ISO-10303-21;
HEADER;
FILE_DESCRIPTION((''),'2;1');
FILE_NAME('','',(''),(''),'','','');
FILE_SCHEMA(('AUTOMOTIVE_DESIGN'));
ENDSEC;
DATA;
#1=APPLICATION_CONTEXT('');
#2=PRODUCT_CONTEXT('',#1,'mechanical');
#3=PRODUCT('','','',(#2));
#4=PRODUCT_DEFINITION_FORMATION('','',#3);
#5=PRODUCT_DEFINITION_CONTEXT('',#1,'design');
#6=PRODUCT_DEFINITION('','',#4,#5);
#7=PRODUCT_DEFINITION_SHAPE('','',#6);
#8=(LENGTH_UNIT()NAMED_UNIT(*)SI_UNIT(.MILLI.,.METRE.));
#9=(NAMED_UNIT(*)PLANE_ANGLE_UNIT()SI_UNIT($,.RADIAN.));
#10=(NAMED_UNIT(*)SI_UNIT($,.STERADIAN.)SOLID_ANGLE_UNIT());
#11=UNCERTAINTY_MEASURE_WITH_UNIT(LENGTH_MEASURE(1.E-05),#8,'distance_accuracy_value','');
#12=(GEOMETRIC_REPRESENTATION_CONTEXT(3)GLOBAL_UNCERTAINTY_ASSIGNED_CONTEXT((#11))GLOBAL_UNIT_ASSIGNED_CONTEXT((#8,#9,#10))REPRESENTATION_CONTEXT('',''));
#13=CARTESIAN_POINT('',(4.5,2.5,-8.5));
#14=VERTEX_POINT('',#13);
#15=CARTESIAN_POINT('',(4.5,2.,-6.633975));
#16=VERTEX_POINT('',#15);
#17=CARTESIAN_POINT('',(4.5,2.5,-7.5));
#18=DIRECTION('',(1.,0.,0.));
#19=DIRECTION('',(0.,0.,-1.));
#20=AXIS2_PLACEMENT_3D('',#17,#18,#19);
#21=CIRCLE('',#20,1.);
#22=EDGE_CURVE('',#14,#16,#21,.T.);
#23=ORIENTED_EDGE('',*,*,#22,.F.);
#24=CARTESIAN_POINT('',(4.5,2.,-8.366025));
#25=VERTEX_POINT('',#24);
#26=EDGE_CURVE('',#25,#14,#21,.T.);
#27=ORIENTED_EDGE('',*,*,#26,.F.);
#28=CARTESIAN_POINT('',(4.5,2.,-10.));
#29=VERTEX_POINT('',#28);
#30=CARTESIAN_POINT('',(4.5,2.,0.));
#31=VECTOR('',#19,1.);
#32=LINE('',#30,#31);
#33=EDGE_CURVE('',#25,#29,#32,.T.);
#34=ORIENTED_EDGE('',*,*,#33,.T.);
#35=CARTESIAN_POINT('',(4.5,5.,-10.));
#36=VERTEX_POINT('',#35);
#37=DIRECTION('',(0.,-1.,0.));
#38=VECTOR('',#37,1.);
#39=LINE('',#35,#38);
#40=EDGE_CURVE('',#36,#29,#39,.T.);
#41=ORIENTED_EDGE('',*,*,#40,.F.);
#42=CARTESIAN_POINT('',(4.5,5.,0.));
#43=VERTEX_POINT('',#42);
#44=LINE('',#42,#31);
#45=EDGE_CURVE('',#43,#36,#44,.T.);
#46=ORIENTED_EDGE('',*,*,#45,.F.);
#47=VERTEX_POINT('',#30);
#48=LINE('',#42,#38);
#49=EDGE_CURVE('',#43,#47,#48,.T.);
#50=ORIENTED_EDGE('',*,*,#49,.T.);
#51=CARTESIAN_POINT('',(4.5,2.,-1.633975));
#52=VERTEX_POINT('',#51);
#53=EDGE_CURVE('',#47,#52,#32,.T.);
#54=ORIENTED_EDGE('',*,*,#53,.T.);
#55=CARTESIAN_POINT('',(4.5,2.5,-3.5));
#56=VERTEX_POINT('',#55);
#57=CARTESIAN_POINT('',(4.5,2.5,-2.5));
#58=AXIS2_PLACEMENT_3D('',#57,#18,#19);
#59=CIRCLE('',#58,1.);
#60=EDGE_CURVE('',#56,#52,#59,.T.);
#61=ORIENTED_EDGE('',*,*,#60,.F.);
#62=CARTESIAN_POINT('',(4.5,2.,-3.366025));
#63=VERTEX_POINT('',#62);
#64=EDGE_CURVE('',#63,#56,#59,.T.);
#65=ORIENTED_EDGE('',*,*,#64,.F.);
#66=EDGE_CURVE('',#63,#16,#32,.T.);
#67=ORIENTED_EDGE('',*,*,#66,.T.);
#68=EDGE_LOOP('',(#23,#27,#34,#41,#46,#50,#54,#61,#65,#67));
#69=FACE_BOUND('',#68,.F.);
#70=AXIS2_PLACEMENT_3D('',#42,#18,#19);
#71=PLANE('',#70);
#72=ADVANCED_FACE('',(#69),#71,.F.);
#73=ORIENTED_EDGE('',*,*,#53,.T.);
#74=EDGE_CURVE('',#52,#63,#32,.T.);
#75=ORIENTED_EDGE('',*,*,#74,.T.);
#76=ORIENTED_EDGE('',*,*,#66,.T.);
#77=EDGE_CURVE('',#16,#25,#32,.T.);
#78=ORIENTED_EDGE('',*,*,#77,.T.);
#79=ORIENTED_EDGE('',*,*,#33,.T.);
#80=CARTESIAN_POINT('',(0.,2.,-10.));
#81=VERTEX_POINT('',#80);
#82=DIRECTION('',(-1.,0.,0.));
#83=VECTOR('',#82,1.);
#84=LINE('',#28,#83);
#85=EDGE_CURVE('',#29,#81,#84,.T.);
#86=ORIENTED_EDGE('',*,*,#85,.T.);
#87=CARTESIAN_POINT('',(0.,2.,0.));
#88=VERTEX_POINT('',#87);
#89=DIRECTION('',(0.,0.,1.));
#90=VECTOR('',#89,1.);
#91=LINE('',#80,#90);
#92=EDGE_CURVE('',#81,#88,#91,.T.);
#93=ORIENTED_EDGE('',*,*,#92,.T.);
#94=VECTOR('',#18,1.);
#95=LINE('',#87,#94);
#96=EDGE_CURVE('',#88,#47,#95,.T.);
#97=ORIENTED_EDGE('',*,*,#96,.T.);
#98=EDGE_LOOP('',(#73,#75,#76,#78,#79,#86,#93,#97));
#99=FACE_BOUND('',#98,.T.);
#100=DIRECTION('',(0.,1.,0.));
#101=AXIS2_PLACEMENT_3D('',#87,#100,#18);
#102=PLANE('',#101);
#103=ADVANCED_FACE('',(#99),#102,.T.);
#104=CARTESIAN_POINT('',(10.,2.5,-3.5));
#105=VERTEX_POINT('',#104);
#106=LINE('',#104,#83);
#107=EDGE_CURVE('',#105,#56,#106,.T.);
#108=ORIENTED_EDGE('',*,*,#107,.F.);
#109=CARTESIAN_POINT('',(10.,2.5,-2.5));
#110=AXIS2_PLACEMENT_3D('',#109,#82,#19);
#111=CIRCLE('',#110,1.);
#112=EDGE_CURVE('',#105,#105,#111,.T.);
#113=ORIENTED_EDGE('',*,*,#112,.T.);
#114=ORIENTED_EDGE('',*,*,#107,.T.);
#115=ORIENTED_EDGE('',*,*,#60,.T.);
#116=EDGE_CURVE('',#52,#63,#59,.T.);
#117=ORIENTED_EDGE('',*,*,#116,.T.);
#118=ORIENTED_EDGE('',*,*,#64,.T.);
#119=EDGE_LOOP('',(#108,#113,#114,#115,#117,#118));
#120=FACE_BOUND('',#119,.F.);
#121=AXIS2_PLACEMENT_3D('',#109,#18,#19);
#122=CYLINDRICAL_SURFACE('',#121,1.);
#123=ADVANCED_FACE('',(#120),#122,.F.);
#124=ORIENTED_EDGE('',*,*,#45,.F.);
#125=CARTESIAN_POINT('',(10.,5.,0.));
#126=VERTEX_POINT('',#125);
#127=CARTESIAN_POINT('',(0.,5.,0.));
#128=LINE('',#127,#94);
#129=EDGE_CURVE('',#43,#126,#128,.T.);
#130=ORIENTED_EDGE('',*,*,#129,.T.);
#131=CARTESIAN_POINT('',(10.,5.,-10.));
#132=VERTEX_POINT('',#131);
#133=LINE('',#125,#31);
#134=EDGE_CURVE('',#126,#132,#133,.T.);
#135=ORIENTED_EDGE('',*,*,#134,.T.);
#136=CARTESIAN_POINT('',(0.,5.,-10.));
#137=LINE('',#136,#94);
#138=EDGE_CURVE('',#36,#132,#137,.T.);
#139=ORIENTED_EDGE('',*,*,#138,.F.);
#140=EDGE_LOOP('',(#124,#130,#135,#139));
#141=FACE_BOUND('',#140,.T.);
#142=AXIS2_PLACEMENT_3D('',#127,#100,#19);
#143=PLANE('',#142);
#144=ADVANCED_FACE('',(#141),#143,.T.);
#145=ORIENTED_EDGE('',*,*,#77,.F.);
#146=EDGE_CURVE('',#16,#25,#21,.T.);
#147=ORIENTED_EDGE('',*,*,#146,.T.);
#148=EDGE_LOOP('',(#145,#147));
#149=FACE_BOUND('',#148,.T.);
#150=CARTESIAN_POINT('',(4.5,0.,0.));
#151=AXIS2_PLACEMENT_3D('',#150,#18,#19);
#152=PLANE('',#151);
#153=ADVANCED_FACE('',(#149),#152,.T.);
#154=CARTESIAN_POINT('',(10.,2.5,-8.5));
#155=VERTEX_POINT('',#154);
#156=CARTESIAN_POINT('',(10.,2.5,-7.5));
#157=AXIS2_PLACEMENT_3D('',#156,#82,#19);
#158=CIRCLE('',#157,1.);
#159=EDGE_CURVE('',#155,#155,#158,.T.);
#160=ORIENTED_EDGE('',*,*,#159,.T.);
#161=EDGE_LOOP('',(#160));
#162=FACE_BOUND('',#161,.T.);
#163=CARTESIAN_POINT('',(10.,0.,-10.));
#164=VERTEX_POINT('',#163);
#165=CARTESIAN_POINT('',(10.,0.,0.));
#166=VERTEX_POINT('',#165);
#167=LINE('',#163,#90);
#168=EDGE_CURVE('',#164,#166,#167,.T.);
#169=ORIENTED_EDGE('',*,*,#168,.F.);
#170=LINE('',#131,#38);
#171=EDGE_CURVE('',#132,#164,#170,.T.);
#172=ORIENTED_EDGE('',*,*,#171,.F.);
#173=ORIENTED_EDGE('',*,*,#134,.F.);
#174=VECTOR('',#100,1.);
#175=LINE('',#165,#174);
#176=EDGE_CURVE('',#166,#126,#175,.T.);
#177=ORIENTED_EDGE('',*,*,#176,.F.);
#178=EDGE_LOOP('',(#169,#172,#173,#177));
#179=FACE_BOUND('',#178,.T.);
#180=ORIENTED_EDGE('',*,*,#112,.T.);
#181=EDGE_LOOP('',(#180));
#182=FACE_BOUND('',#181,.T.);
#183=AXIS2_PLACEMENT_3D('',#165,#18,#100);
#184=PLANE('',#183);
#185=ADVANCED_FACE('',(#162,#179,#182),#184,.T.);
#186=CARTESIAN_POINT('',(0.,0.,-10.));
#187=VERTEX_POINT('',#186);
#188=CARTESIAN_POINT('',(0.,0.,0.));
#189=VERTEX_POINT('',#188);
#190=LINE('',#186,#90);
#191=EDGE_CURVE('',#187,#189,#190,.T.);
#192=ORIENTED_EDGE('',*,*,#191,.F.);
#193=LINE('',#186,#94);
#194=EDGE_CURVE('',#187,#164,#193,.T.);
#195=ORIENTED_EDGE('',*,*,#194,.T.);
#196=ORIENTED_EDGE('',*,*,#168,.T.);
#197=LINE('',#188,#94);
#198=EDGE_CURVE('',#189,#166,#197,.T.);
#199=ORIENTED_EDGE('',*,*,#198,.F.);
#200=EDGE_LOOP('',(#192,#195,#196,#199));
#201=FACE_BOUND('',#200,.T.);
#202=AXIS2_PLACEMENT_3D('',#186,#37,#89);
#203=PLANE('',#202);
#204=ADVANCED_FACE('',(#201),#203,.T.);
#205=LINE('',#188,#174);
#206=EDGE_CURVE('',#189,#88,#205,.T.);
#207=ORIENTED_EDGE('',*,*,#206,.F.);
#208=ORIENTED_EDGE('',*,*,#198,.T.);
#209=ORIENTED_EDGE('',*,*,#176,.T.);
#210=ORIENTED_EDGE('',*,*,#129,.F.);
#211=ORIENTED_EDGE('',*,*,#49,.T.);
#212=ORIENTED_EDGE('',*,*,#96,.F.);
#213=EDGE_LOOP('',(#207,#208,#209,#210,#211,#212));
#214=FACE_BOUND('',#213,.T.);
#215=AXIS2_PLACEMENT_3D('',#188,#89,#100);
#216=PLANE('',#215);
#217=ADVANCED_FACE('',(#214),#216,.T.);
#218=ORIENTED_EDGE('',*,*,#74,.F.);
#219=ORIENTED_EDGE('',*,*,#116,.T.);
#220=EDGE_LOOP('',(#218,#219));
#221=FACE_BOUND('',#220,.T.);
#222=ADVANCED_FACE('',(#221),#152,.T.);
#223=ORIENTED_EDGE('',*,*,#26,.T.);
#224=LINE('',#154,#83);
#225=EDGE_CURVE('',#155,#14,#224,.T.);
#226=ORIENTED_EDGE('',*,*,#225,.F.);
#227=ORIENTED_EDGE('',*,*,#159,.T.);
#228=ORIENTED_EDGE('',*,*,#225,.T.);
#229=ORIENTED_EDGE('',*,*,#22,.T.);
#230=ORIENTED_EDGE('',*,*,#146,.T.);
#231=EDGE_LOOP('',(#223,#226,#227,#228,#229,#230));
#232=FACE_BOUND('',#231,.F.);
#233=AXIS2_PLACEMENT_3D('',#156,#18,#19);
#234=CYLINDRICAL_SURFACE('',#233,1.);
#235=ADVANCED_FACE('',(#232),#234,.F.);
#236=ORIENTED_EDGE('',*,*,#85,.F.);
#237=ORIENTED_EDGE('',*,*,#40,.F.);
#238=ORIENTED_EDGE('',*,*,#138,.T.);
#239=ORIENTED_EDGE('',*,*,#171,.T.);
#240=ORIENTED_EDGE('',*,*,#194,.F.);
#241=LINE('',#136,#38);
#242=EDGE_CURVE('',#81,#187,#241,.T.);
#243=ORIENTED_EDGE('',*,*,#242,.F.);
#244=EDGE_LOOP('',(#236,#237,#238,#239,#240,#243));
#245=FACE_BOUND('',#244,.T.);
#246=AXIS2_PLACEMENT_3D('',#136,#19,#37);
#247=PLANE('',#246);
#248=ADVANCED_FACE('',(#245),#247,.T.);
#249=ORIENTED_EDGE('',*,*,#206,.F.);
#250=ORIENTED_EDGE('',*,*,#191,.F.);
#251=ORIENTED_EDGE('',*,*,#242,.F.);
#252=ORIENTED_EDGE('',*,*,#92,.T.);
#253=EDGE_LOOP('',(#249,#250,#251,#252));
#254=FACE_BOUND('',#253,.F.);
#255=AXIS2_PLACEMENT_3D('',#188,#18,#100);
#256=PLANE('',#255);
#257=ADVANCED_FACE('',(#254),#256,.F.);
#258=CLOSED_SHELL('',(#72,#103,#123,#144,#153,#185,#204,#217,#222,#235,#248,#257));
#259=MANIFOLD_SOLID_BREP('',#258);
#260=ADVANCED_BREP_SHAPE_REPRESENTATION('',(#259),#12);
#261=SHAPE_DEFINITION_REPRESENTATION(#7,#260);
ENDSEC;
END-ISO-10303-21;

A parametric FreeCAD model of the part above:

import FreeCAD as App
import Part
import Sketcher


def add_polygon(sketch, points):
    """Adds a closed chain of lines whose ends are joined by coincident constraints."""
    first, n = sketch.GeometryCount, len(points)
    for a, b in zip(points, points[1:] + points[:1]):
        sketch.addGeometry(Part.LineSegment(App.Vector(*a, 0), App.Vector(*b, 0)), False)
    for i in range(n):
        sketch.addConstraint(Sketcher.Constraint("Coincident", first + i, 2, first + (i + 1) % n, 1))

doc = App.newDocument("Part")
body = doc.addObject("PartDesign::Body", "Body")

# Sketch on YZ plane
sketch1 = doc.addObject("Sketcher::SketchObject", "Sketch")
body.addObject(sketch1)
sketch1.AttachmentSupport = (doc.YZ_Plane, [""])
sketch1.MapMode = "FlatFace"
add_polygon(sketch1, [(5, 0), (0, 0), (0, -10), (5, -10)])  # lines 0-3
sketch1.addConstraint([
    Sketcher.Constraint("Horizontal", 0),
    Sketcher.Constraint("Vertical", 1),
    Sketcher.Constraint("Horizontal", 2),
    Sketcher.Constraint("Vertical", 3),
    Sketcher.Constraint("Coincident", 0, 2, -1, 1),
    Sketcher.Constraint("DistanceX", 0, 2, 0, 1, 5.0),
    Sketcher.Constraint("DistanceY", 1, 2, 1, 1, 10.0),
])
pad1 = doc.addObject("PartDesign::Pad", "Pad")
body.addObject(pad1)
pad1.Profile = sketch1
pad1.Length = 10

# Sketch on XZ plane
sketch2 = doc.addObject("Sketcher::SketchObject", "Sketch001")
body.addObject(sketch2)
sketch2.AttachmentSupport = (doc.XZ_Plane, [""])
sketch2.MapMode = "FlatFace"
sketch2.AttachmentOffset = App.Placement(App.Vector(0, 0, -5), App.Rotation())
add_polygon(sketch2, [(0, -10), (0, 0), (4.5, 0), (4.5, -10)])  # lines 0-3
sketch2.addConstraint([
    Sketcher.Constraint("Vertical", 0),
    Sketcher.Constraint("Horizontal", 1),
    Sketcher.Constraint("Vertical", 2),
    Sketcher.Constraint("Horizontal", 3),
    Sketcher.Constraint("Coincident", 0, 2, -1, 1),
    Sketcher.Constraint("DistanceY", 0, 1, 0, 2, 10.0),
    Sketcher.Constraint("DistanceX", 1, 1, 1, 2, 4.5),
])
pocket1 = doc.addObject("PartDesign::Pocket", "Pocket")
body.addObject(pocket1)
pocket1.Profile = sketch2
pocket1.Length = 3
pocket1.Reversed = True

# Sketch on YZ plane
sketch3 = doc.addObject("Sketcher::SketchObject", "Sketch002")
body.addObject(sketch3)
sketch3.AttachmentSupport = (doc.YZ_Plane, [""])
sketch3.MapMode = "FlatFace"
sketch3.AttachmentOffset = App.Placement(App.Vector(0, 0, 10), App.Rotation())
sketch3.addGeometry([
    Part.Circle(App.Vector(2.5, -7.5, 0), App.Vector(0, 0, 1), 1),
    Part.Circle(App.Vector(2.5, -2.5, 0), App.Vector(0, 0, 1), 1),
], False)
sketch3.addConstraint([
    Sketcher.Constraint("Equal", 0, 1),
    Sketcher.Constraint("Vertical", 0, 3, 1, 3),
    Sketcher.Constraint("Diameter", 0, 2.0),
    Sketcher.Constraint("DistanceX", -1, 1, 0, 3, 2.5),
    Sketcher.Constraint("DistanceY", 1, 3, -1, 1, 2.5),
    Sketcher.Constraint("DistanceY", 0, 3, 1, 3, 5.0),
])
pocket2 = doc.addObject("PartDesign::Pocket", "Pocket001")
body.addObject(pocket2)
pocket2.Profile = sketch3
pocket2.Length = 5.5

doc.recompute()
